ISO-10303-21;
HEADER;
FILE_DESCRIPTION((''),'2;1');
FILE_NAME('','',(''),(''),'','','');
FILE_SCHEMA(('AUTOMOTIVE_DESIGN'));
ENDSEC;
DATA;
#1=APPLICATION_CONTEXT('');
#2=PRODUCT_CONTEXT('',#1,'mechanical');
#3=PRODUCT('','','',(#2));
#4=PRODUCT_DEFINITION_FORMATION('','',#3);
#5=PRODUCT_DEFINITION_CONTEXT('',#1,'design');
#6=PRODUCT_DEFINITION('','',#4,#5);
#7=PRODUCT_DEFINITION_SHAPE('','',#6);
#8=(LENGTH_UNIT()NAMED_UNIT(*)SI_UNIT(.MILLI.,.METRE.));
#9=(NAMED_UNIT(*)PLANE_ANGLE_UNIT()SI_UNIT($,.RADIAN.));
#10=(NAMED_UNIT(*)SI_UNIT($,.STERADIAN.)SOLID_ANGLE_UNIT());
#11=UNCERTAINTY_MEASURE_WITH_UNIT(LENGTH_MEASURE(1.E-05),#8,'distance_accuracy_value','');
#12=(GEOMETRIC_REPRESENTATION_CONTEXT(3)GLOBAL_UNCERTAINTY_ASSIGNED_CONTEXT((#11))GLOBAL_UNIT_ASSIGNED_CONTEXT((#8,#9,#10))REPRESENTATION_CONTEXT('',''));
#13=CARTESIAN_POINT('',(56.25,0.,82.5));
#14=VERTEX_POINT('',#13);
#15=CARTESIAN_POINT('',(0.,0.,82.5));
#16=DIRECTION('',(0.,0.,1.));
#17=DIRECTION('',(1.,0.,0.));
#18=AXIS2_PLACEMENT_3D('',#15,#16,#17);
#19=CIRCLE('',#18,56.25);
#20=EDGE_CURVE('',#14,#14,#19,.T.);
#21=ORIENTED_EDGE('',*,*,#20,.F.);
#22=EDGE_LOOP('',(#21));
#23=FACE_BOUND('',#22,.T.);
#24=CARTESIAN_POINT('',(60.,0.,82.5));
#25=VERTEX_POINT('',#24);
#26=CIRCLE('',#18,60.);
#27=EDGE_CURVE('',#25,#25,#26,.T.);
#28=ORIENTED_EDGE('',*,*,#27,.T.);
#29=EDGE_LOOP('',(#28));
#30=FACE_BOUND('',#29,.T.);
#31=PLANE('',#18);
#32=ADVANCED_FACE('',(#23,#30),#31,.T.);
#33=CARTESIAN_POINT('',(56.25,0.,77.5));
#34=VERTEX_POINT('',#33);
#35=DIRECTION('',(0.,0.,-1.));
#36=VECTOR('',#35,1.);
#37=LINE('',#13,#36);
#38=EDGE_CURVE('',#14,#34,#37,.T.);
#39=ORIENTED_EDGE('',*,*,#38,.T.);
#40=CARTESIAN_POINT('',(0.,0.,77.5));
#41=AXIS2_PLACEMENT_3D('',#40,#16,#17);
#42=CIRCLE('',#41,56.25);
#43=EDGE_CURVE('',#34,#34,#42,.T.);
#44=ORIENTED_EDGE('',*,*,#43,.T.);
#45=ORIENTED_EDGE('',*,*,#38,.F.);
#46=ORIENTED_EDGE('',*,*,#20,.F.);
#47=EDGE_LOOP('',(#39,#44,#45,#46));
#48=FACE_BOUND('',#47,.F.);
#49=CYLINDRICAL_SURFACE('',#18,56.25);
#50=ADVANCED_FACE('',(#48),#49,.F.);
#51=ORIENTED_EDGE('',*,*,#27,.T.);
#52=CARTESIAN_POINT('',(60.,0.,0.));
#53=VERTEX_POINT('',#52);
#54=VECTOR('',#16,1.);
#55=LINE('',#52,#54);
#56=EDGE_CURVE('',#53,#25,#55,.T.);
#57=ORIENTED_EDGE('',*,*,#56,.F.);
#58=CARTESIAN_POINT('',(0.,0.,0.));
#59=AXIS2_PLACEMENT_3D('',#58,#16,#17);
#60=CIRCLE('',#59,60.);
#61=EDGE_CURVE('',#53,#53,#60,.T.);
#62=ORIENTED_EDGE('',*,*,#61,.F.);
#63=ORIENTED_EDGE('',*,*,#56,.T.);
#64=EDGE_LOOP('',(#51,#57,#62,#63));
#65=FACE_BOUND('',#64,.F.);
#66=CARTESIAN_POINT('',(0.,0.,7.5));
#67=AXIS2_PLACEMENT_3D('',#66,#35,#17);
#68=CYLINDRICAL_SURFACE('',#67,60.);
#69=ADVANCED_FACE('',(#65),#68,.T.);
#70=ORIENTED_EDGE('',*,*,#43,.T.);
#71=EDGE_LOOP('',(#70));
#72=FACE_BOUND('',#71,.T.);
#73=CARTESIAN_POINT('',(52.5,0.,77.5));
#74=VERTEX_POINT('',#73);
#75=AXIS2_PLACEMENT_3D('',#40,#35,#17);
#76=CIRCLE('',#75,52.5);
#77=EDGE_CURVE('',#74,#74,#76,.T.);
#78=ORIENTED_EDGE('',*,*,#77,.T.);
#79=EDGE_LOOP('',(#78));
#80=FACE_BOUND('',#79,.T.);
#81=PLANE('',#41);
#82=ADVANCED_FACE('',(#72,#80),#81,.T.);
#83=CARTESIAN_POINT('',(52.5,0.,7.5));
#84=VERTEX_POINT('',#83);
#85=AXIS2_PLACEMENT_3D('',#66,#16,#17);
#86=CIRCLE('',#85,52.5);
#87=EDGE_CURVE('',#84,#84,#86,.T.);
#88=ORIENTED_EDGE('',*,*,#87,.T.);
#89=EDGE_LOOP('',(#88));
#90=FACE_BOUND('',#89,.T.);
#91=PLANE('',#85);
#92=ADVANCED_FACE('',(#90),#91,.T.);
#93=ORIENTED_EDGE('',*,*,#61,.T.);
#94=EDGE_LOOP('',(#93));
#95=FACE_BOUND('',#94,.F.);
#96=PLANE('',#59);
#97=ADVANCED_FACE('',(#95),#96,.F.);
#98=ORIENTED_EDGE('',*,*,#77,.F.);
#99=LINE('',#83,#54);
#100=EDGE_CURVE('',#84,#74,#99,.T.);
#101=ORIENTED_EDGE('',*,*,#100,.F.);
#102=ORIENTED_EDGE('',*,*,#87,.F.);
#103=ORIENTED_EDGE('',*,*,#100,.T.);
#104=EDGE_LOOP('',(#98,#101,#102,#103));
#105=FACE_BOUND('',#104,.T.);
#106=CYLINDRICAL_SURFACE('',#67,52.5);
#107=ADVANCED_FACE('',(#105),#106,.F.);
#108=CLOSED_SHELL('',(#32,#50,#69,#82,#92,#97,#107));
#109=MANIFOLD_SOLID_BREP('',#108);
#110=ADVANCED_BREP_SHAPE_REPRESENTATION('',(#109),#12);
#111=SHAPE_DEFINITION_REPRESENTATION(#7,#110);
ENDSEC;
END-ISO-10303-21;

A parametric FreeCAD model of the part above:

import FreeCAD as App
import Part
import Sketcher
from FreeCAD import Vector
Q = App.Units.Quantity

doc = App.newDocument("Part")
params = doc.addObject("Spreadsheet::Sheet", "Params")
for row, (alias, value) in enumerate([
    ("sketch1_diameter", "120 mm"),
    ("pad1_length", "7.5 mm"),
    ("sketch2_diameter", "120 mm"),
    ("sketch2_diameter2", "105 mm"),
    ("pad2_length", "75 mm"),
    ("sketch3_diameter", "112.5 mm"),
    ("pocket1_length", "5 mm"),
], start=1):
    params.set(f"A{row}", alias)
    params.set(f"B{row}", "=" + value)
    params.setAlias(f"B{row}", alias)

body = doc.addObject("PartDesign::Body", "Body")

# Sketch on XY plane
sketch1 = body.newObject("Sketcher::SketchObject", "Sketch")
sketch1.AttachmentSupport = (doc.getObject("XY_Plane"), [""])
sketch1.MapMode = "FlatFace"
sketch1.addGeometry(Part.Circle(Vector(0, 0, 0), Vector(0, 0, 1), 60), False)
sketch1.addConstraint(Sketcher.Constraint("Coincident", 0, 3, -1, 1))
sketch1.addConstraint(Sketcher.Constraint("Diameter", 0, Q("120 mm")))
sketch1.setExpression("Constraints[1]", "Params.sketch1_diameter")
pad1 = body.newObject("PartDesign::Pad", "Pad")
pad1.Profile = sketch1
pad1.setExpression("Length", "Params.pad1_length")

# Sketch on XY plane
sketch2 = body.newObject("Sketcher::SketchObject", "Sketch001")
sketch2.AttachmentSupport = (doc.getObject("XY_Plane"), [""])
sketch2.MapMode = "FlatFace"
sketch2.AttachmentOffset = App.Placement(Vector(0, 0, 7.5), App.Rotation())
sketch2.addGeometry(Part.Circle(Vector(0, 0, 0), Vector(0, 0, 1), 60), False)
sketch2.addGeometry(Part.Circle(Vector(0, 0, 0), Vector(0, 0, 1), 52), False)
sketch2.addConstraint(Sketcher.Constraint("Coincident", 0, 3, -1, 1))
sketch2.addConstraint(Sketcher.Constraint("Coincident", 1, 3, -1, 1))
sketch2.addConstraint(Sketcher.Constraint("Diameter", 0, Q("120 mm")))
sketch2.addConstraint(Sketcher.Constraint("Diameter", 1, Q("105 mm")))
sketch2.setExpression("Constraints[2]", "Params.sketch2_diameter")
sketch2.setExpression("Constraints[3]", "Params.sketch2_diameter2")
pad2 = body.newObject("PartDesign::Pad", "Pad001")
pad2.Profile = sketch2
pad2.setExpression("Length", "Params.pad2_length")

# Sketch on XY plane
sketch3 = body.newObject("Sketcher::SketchObject", "Sketch002")
sketch3.AttachmentSupport = (doc.getObject("XY_Plane"), [""])
sketch3.MapMode = "FlatFace"
sketch3.AttachmentOffset = App.Placement(Vector(0, 0, 82.5), App.Rotation())
sketch3.addGeometry(Part.Circle(Vector(0, 0, 0), Vector(0, 0, 1), 56), False)
sketch3.addConstraint(Sketcher.Constraint("Coincident", 0, 3, -1, 1))
sketch3.addConstraint(Sketcher.Constraint("Diameter", 0, Q("112.5 mm")))
sketch3.setExpression("Constraints[1]", "Params.sketch3_diameter")
pocket1 = body.newObject("PartDesign::Pocket", "Pocket")
pocket1.Profile = sketch3
pocket1.setExpression("Length", "Params.pocket1_length")

doc.recompute()
